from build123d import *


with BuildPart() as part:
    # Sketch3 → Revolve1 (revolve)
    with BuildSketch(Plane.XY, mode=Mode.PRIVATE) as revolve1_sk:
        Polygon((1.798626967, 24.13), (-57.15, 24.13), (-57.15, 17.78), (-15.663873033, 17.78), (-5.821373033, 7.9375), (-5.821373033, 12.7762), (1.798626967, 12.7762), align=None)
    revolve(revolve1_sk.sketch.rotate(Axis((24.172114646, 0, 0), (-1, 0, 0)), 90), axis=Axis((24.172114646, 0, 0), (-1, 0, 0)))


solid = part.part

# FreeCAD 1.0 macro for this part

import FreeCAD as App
import Part
import Sketcher

V = App.Vector
Q = App.Units.Quantity


def add_polygon(sketch, points):
    """Adds a closed chain of lines whose ends are joined by coincident constraints."""
    first, n = sketch.GeometryCount, len(points)
    for a, b in zip(points, points[1:] + points[:1]):
        sketch.addGeometry(Part.LineSegment(App.Vector(*a, 0), App.Vector(*b, 0)), False)
    for i in range(n):
        sketch.addConstraint(Sketcher.Constraint("Coincident", first + i, 2, first + (i + 1) % n, 1))

doc = App.newDocument("Part")
body = doc.addObject("PartDesign::Body", "Body")

# Sketch on XY plane
sketch1 = body.newObject("Sketcher::SketchObject", "Sketch")
sketch1.AttachmentSupport = (doc.getObject("XY_Plane"), [""])
sketch1.MapMode = "FlatFace"
add_polygon(sketch1, [(1.8, 24.1), (-57.1, 24.1), (-57.1, 17.8), (-15.7, 17.8), (-5.8, 7.9), (-5.8, 12.8), (1.8, 12.8)])  # lines 0-6
sketch1.addConstraint([
    Sketcher.Constraint("Horizontal", 0),
    Sketcher.Constraint("Vertical", 1),
    Sketcher.Constraint("Horizontal", 2),
    Sketcher.Constraint("Vertical", 4),
    Sketcher.Constraint("Horizontal", 5),
    Sketcher.Constraint("Vertical", 6),
    Sketcher.Constraint("DistanceX", 5, 1, 5, 2, Q("0.3 in")),
    Sketcher.Constraint("Angle", 3, Q("-45 deg")),
    Sketcher.Constraint("DistanceY", 1, 2, 1, 1, Q("0.25 in")),
    Sketcher.Constraint("DistanceY", -1, 1, 1, 2, Q("0.7 in")),
    Sketcher.Constraint("DistanceY", 6, 1, 6, 2, Q("0.447 in")),
    Sketcher.Constraint("DistanceX", 0, 2, -1, 1, Q("2.25 in")),
    Sketcher.Constraint("DistanceY", 4, 1, 4, 2, Q("0.1905 in")),
    Sketcher.Constraint("DistanceX", 0, 2, 0, 1, Q("58.948627 mm")),
])
revolution = body.newObject("PartDesign::Revolution", "Revolution")
revolution.Profile = sketch1
revolution.ReferenceAxis = (sketch1, ["H_Axis"])
revolution.Angle = 360

doc.recompute()
